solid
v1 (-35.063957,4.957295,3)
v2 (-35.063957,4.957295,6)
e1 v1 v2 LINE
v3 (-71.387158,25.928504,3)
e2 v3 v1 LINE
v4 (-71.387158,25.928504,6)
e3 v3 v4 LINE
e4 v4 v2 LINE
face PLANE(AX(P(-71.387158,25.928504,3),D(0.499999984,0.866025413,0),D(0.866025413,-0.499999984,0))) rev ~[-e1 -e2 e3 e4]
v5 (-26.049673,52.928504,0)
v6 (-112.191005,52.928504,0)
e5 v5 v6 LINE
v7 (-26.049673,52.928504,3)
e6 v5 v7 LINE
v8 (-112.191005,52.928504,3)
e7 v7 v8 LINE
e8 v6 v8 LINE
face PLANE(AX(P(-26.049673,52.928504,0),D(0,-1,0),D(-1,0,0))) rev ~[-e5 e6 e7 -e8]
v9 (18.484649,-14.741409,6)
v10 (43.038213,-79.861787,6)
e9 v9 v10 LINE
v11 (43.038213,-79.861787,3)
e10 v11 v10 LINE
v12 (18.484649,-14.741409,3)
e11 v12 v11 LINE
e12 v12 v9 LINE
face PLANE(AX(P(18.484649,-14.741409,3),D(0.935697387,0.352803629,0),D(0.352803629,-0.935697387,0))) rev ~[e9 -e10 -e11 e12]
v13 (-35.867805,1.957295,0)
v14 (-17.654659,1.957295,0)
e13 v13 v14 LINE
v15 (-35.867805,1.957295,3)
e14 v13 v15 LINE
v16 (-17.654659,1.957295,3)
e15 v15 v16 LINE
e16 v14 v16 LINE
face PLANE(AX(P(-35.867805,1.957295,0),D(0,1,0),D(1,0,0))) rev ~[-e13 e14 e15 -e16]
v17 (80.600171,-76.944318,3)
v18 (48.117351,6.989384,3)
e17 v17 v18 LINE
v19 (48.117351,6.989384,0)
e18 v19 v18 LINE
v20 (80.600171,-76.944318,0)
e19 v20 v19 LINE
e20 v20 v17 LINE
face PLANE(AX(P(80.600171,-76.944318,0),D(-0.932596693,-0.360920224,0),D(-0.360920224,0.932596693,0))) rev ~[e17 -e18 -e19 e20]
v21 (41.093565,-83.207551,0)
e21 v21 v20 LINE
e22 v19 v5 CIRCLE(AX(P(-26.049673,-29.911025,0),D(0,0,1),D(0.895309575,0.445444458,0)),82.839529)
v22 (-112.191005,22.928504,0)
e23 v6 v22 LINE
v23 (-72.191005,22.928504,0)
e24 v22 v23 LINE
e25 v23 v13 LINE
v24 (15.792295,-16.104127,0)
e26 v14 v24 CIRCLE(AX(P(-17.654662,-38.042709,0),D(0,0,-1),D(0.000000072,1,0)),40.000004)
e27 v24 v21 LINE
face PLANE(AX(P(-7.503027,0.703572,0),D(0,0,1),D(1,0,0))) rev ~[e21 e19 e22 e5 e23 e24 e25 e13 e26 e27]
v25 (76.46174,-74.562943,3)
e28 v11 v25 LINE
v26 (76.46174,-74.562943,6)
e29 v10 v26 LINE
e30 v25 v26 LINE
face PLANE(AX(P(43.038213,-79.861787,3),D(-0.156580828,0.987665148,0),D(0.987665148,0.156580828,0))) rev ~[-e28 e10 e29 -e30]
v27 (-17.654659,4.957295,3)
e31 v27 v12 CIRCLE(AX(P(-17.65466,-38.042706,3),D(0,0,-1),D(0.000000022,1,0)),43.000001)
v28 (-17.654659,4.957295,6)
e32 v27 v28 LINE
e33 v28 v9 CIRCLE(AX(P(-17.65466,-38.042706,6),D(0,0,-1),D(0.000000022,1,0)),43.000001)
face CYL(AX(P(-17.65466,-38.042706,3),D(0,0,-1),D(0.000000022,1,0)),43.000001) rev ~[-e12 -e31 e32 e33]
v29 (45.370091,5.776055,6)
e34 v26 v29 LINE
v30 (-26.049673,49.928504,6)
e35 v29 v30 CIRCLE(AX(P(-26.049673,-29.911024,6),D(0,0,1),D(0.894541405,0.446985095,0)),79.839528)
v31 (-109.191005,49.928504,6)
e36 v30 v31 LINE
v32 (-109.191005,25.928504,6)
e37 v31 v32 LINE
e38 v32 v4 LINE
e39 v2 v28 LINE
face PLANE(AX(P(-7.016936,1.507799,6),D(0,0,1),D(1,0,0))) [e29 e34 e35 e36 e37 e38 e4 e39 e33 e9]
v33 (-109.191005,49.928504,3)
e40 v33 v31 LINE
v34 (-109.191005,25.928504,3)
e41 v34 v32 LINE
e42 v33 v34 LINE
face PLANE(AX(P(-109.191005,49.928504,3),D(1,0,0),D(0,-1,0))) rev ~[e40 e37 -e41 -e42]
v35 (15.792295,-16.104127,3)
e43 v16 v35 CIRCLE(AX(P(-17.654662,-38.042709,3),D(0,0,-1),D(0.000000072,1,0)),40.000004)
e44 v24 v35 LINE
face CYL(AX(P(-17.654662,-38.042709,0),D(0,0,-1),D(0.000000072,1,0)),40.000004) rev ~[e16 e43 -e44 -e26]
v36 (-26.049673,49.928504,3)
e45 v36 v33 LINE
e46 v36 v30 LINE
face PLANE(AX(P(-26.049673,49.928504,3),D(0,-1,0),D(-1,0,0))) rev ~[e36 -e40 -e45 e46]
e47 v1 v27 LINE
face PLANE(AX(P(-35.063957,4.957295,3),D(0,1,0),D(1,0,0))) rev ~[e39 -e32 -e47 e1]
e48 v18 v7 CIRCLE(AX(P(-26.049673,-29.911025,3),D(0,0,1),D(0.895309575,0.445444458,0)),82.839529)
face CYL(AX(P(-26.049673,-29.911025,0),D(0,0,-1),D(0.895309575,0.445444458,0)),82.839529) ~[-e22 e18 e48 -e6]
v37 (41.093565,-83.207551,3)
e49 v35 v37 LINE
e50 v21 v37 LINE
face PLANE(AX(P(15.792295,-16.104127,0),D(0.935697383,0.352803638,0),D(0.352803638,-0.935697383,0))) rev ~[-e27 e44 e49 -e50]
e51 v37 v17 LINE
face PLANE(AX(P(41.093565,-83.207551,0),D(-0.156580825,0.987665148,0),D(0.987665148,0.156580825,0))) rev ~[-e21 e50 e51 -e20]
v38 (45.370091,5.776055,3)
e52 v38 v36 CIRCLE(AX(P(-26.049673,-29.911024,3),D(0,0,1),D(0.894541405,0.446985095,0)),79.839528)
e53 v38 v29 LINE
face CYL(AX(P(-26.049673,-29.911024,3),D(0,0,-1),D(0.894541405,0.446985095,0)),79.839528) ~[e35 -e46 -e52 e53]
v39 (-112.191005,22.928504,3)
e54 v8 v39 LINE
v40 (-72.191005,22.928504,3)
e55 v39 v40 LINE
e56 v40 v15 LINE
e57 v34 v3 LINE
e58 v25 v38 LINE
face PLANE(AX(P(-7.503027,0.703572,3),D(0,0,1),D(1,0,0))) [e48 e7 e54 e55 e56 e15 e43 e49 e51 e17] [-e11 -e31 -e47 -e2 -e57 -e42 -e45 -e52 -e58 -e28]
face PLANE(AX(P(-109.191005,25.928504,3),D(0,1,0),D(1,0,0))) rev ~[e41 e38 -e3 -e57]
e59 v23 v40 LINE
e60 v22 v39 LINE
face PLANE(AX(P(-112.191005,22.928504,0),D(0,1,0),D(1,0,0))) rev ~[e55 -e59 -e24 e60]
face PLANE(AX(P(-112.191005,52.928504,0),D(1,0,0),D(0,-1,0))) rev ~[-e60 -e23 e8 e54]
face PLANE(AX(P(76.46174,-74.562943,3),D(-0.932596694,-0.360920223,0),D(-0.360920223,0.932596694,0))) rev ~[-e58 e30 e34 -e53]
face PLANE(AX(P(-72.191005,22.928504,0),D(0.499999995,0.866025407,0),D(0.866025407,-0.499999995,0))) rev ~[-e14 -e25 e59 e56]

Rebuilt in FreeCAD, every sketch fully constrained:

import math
import FreeCAD as App
import Part
import Sketcher

V = App.Vector
Q = App.Units.Quantity

doc = App.newDocument("Part")
body = doc.addObject("PartDesign::Body", "Body")

# Sketch on XY plane
sketch1 = body.newObject("Sketcher::SketchObject", "Sketch")
sketch1.AttachmentSupport = (doc.getObject("XY_Plane"), [""])
sketch1.MapMode = "FlatFace"
sketch1.addGeometry([
    Part.LineSegment(V(-26, 53, 0), V(-112, 53, 0)),  # 0
    Part.LineSegment(V(-112, 53, 0), V(-112, 23, 0)),  # 1
    Part.LineSegment(V(-112, 23, 0), V(-72, 23, 0)),  # 2
    Part.LineSegment(V(-72, 23, 0), V(-36, 2, 0)),  # 3
    Part.LineSegment(V(-36, 2, 0), V(-18, 2, 0)),  # 4
    Part.ArcOfCircle(Part.Circle(V(-18, -38, 0), V(0, 0, 1), 40), math.radians(33), math.radians(90)),  # 5
    Part.LineSegment(V(16, -16, 0), V(41, -83, 0)),  # 6
    Part.LineSegment(V(41, -83, 0), V(81, -77, 0)),  # 7
    Part.LineSegment(V(81, -77, 0), V(48, 7, 0)),  # 8
    Part.ArcOfCircle(Part.Circle(V(-26, -30, 0), V(0, 0, 1), 83), math.radians(26), math.radians(90)),  # 9
], False)
sketch1.addConstraint([
    Sketcher.Constraint("Coincident", 0, 2, 1, 1),
    Sketcher.Constraint("Coincident", 1, 2, 2, 1),
    Sketcher.Constraint("Coincident", 2, 2, 3, 1),
    Sketcher.Constraint("Coincident", 3, 2, 4, 1),
    Sketcher.Constraint("Tangent", 4, 2, 5, 2),
    Sketcher.Constraint("Coincident", 5, 1, 6, 1),
    Sketcher.Constraint("Coincident", 6, 2, 7, 1),
    Sketcher.Constraint("Coincident", 7, 2, 8, 1),
    Sketcher.Constraint("Coincident", 8, 2, 9, 1),
    Sketcher.Constraint("Tangent", 9, 2, 0, 1),
    Sketcher.Constraint("Horizontal", 0),
    Sketcher.Constraint("Vertical", 1),
    Sketcher.Constraint("Horizontal", 2),
    Sketcher.Constraint("Horizontal", 4),
    Sketcher.Constraint("DistanceX", 2, 1, 2, 2, Q("40 mm")),
    Sketcher.Constraint("DistanceY", 1, 2, 1, 1, Q("30 mm")),
    Sketcher.Constraint("Angle", 3, Q("-30 deg")),
    Sketcher.Constraint("Distance", 7, Q("40 mm")),
    Sketcher.Constraint("Distance", 8, Q("90 mm")),
    Sketcher.Constraint("Radius", 9, Q("82.839529 mm")),
    Sketcher.Constraint("Radius", 5, Q("40.000004 mm")),
    Sketcher.Constraint("DistanceX", 2, 2, 3, 2, Q("36.3232 mm")),
    Sketcher.Constraint("DistanceY", 9, 3, 5, 1, Q("13.806898 mm")),
    Sketcher.Constraint("DistanceX", 3, 2, 5, 1, Q("51.6601 mm")),
    Sketcher.Constraint("Distance", 6, Q("71.714878 mm")),
    Sketcher.Constraint("DistanceX", 0, 2, 0, 1, Q("86.141332 mm")),
    Sketcher.Constraint("DistanceX", 5, 3, -1, 1, Q("17.654662 mm")),
    Sketcher.Constraint("DistanceY", 5, 3, -1, 1, Q("38.042709 mm")),
    Sketcher.Constraint("DistanceY", 6, 2, -1, 1, Q("83.207551 mm")),
    Sketcher.Constraint("DistanceX", -1, 1, 7, 2, Q("80.600171 mm")),
])
pad1 = body.newObject("PartDesign::Pad", "Pad")
pad1.Profile = sketch1
pad1.Length = 3

# Sketch on XY plane
sketch2 = body.newObject("Sketcher::SketchObject", "Sketch001")
sketch2.AttachmentSupport = (doc.getObject("XY_Plane"), [""])
sketch2.MapMode = "FlatFace"
sketch2.AttachmentOffset = App.Placement(V(0, 0, 3), App.Rotation())
sketch2.addGeometry([
    Part.LineSegment(V(-35, 5, 0), V(-18, 5, 0)),  # 0
    Part.ArcOfCircle(Part.Circle(V(-18, -38, 0), V(0, 0, 1), 43), math.radians(33), math.radians(90)),  # 1
    Part.LineSegment(V(18, -15, 0), V(43, -80, 0)),  # 2
    Part.LineSegment(V(43, -80, 0), V(76, -75, 0)),  # 3
    Part.LineSegment(V(76, -75, 0), V(45, 6, 0)),  # 4
    Part.ArcOfCircle(Part.Circle(V(-26, -30, 0), V(0, 0, 1), 80), math.radians(27), math.radians(90)),  # 5
    Part.LineSegment(V(-26, 50, 0), V(-109, 50, 0)),  # 6
    Part.LineSegment(V(-109, 50, 0), V(-109, 26, 0)),  # 7
    Part.LineSegment(V(-109, 26, 0), V(-71, 26, 0)),  # 8
    Part.LineSegment(V(-71, 26, 0), V(-35, 5, 0)),  # 9
], False)
sketch2.addConstraint([
    Sketcher.Constraint("Tangent", 0, 2, 1, 2),
    Sketcher.Constraint("Coincident", 1, 1, 2, 1),
    Sketcher.Constraint("Coincident", 2, 2, 3, 1),
    Sketcher.Constraint("Coincident", 3, 2, 4, 1),
    Sketcher.Constraint("Coincident", 4, 2, 5, 1),
    Sketcher.Constraint("Tangent", 5, 2, 6, 1),
    Sketcher.Constraint("Coincident", 6, 2, 7, 1),
    Sketcher.Constraint("Coincident", 7, 2, 8, 1),
    Sketcher.Constraint("Coincident", 8, 2, 9, 1),
    Sketcher.Constraint("Coincident", 9, 2, 0, 1),
    Sketcher.Constraint("Horizontal", 0),
    Sketcher.Constraint("Horizontal", 6),
    Sketcher.Constraint("Vertical", 7),
    Sketcher.Constraint("Horizontal", 8),
    Sketcher.Constraint("Radius", 1, Q("43.000001 mm")),
    Sketcher.Constraint("DistanceY", 7, 2, 7, 1, Q("24 mm")),
    Sketcher.Constraint("Angle", 9, Q("-29.999999 deg")),
    Sketcher.Constraint("Radius", 5, Q("79.839528 mm")),
    Sketcher.Constraint("DistanceX", 0, 1, 0, 2, Q("17.409298 mm")),
    Sketcher.Constraint("DistanceX", 1, 3, 3, 2, Q("94.1164 mm")),
    Sketcher.Constraint("DistanceX", 8, 2, 0, 2, Q("53.732499 mm")),
    Sketcher.Constraint("Distance", 3, Q("33.84095 mm")),
    Sketcher.Constraint("Distance", 4, Q("86.145489 mm")),
    Sketcher.Constraint("DistanceX", 6, 2, 6, 1, Q("83.141332 mm")),
    Sketcher.Constraint("DistanceX", 8, 1, 8, 2, Q("37.803847 mm")),
    Sketcher.Constraint("DistanceX", 1, 3, -1, 1, Q("17.65466 mm")),
    Sketcher.Constraint("DistanceX", -1, 1, 1, 1, Q("18.484649 mm")),
    Sketcher.Constraint("DistanceY", 1, 1, -1, 1, Q("14.741409 mm")),
    Sketcher.Constraint("DistanceX", -1, 1, 4, 2, Q("45.370091 mm")),
    Sketcher.Constraint("DistanceY", 2, 2, 1, 1, Q("65.120378 mm")),
])
pad2 = body.newObject("PartDesign::Pad", "Pad001")
pad2.Profile = sketch2
pad2.Length = 3

doc.recompute()
